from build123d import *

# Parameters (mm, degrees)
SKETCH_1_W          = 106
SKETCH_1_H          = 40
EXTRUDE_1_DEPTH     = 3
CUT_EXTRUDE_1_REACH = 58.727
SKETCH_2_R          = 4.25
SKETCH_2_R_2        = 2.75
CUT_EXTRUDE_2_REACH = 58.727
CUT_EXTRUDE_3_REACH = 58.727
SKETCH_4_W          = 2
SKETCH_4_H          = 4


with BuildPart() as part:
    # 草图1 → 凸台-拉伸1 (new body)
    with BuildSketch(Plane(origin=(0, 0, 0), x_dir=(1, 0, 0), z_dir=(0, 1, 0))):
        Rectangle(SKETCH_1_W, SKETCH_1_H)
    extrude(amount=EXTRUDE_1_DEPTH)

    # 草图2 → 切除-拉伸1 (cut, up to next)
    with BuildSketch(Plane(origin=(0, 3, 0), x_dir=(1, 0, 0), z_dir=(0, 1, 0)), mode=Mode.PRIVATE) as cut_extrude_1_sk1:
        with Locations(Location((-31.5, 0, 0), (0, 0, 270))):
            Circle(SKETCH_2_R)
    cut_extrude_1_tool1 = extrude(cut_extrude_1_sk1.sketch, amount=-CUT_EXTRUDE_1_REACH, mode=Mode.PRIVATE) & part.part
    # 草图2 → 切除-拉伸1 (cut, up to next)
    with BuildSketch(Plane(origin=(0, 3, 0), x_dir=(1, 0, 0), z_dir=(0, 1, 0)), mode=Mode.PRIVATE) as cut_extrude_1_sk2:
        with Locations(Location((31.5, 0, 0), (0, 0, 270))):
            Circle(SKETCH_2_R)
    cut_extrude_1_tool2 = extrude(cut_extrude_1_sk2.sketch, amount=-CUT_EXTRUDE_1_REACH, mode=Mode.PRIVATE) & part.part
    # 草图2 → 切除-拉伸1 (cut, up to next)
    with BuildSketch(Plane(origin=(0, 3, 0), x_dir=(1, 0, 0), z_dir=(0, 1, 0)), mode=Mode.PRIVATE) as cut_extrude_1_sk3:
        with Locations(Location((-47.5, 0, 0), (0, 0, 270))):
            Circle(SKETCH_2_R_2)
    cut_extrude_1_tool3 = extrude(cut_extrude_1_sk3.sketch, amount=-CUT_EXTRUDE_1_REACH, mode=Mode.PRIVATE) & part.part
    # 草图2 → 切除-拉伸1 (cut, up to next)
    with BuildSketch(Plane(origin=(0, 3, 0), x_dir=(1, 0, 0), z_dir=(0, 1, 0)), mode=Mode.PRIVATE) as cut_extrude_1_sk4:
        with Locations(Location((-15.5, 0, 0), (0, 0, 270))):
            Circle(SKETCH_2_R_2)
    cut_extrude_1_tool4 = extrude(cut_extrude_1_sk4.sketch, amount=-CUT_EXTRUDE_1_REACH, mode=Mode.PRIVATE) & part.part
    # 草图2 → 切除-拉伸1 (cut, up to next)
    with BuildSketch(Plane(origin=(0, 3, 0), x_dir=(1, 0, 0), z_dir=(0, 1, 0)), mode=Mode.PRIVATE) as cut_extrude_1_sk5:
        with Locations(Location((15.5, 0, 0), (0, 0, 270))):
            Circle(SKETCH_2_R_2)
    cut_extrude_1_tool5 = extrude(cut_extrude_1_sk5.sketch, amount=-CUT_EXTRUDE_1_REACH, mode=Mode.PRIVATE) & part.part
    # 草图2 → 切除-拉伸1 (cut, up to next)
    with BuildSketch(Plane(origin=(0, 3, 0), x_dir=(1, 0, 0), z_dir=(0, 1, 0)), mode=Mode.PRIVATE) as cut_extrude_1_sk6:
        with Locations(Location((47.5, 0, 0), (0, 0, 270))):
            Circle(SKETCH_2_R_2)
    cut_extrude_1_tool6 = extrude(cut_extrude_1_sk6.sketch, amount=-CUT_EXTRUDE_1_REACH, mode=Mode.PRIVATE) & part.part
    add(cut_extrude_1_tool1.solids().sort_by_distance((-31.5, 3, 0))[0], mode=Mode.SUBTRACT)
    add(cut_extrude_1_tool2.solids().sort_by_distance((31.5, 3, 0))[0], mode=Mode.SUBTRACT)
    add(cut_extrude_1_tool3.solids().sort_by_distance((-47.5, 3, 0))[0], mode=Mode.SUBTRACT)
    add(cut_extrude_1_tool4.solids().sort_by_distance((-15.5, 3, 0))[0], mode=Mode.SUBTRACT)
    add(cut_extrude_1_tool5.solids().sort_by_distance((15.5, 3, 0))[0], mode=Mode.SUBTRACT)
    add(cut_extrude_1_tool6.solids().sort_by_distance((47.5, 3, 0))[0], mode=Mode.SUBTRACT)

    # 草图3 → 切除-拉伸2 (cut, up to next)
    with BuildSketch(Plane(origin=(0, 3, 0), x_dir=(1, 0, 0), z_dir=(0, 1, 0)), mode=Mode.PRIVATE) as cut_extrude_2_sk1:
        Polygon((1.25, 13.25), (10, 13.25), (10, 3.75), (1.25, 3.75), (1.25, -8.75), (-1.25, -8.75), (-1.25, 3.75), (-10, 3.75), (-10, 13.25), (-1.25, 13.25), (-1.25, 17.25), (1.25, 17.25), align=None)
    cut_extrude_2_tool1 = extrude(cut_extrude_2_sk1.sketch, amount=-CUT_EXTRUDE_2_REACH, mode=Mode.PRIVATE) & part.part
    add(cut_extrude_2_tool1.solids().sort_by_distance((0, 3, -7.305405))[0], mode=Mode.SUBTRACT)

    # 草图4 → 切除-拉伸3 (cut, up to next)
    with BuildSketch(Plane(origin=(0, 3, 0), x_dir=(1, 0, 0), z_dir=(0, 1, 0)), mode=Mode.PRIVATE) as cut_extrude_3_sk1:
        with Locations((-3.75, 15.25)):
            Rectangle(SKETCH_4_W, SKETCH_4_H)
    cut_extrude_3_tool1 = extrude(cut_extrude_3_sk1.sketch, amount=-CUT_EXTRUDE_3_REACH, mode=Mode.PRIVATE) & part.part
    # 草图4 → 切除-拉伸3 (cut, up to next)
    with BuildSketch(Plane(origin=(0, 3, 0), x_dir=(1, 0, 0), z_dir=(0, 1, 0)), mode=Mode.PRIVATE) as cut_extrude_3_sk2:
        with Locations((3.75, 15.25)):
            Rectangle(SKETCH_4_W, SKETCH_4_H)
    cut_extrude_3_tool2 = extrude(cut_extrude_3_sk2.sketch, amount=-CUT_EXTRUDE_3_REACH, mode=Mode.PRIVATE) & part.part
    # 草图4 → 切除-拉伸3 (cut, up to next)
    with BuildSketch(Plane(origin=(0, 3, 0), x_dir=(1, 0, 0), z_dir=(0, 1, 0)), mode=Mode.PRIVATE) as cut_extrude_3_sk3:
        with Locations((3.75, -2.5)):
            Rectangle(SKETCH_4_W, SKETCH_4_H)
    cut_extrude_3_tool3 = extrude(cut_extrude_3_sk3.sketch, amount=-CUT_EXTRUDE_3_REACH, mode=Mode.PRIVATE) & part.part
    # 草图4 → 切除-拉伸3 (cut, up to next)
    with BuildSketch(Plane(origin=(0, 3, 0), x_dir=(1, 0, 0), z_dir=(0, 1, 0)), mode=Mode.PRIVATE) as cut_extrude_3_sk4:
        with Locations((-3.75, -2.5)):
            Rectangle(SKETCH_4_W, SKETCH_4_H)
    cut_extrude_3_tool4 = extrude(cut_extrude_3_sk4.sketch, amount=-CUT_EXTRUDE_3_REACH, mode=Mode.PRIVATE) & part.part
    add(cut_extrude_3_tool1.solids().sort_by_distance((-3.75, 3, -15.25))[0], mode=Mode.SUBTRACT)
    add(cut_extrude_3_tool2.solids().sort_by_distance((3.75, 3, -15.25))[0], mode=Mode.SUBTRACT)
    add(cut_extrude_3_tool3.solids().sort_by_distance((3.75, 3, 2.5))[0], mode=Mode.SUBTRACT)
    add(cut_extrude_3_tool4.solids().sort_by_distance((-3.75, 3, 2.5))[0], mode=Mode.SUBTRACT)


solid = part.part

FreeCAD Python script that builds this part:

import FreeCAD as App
import Part
import Sketcher

V = App.Vector

doc = App.newDocument("Part")
body = doc.addObject("PartDesign::Body", "Body")

sketch1 = body.newObject("Sketcher::SketchObject", "Sketch")
sketch1.AttachmentSupport = (doc.getObject("XZ_Plane"), [""])
sketch1.MapMode = "FlatFace"
sketch1.addGeometry([
    Part.LineSegment(V(-53, -20, 0), V(-53, 20, 0)),
    Part.LineSegment(V(-53, 20, 0), V(53, 20, 0)),
    Part.LineSegment(V(53, 20, 0), V(53, -20, 0)),
    Part.LineSegment(V(53, -20, 0), V(-53, -20, 0)),
], False)
sketch1.addConstraint([
    Sketcher.Constraint("Coincident", 0, 2, 1, 1),
    Sketcher.Constraint("Coincident", 1, 2, 2, 1),
    Sketcher.Constraint("Coincident", 2, 2, 3, 1),
    Sketcher.Constraint("Coincident", 3, 2, 0, 1),
    Sketcher.Constraint("Vertical", 0),
    Sketcher.Constraint("Horizontal", 1),
    Sketcher.Constraint("Vertical", 2),
    Sketcher.Constraint("Horizontal", 3),
    Sketcher.Constraint("Symmetric", 0, 2, 2, 2, -1, 1),
    Sketcher.Constraint("DistanceX", 1, 1, 1, 2, 106.0),
    Sketcher.Constraint("DistanceY", 0, 1, 0, 2, 40.0),
])
pad1 = body.newObject("PartDesign::Pad", "Pad")
pad1.Profile = sketch1
pad1.Length = 3
pad1.Reversed = True

sketch2 = body.newObject("Sketcher::SketchObject", "Sketch001")
sketch2.AttachmentSupport = (doc.getObject("XZ_Plane"), [""])
sketch2.MapMode = "FlatFace"
sketch2.AttachmentOffset = App.Placement(V(0, 0, -3), App.Rotation())
sketch2.addGeometry(Part.Circle(V(-31.5, 0, 0), V(0, 0, 1), 4.2), False)
sketch2.addConstraint([
    Sketcher.Constraint("PointOnObject", 0, 3, -1),
    Sketcher.Constraint("Diameter", 0, 8.5),
    Sketcher.Constraint("DistanceX", 0, 3, -1, 1, 31.5),
])
pocket1 = body.newObject("PartDesign::Pocket", "Pocket")
pocket1.Profile = sketch2
pocket1.Type = "UpToFirst"
pocket1.Reversed = True

sketch3 = body.newObject("Sketcher::SketchObject", "Sketch002")
sketch3.AttachmentSupport = (doc.getObject("XZ_Plane"), [""])
sketch3.MapMode = "FlatFace"
sketch3.AttachmentOffset = App.Placement(V(0, 0, -3), App.Rotation())
sketch3.addGeometry(Part.Circle(V(31.5, 0, 0), V(0, 0, 1), 4.2), False)
sketch3.addConstraint([
    Sketcher.Constraint("PointOnObject", 0, 3, -1),
    Sketcher.Constraint("Diameter", 0, 8.5),
    Sketcher.Constraint("DistanceX", -1, 1, 0, 3, 31.5),
])
pocket2 = body.newObject("PartDesign::Pocket", "Pocket001")
pocket2.Profile = sketch3
pocket2.Type = "UpToFirst"
pocket2.Reversed = True

sketch4 = body.newObject("Sketcher::SketchObject", "Sketch003")
sketch4.AttachmentSupport = (doc.getObject("XZ_Plane"), [""])
sketch4.MapMode = "FlatFace"
sketch4.AttachmentOffset = App.Placement(V(0, 0, -3), App.Rotation())
sketch4.addGeometry(Part.Circle(V(-47.5, 0, 0), V(0, 0, 1), 2.8), False)
sketch4.addConstraint([
    Sketcher.Constraint("PointOnObject", 0, 3, -1),
    Sketcher.Constraint("Diameter", 0, 5.5),
    Sketcher.Constraint("DistanceX", 0, 3, -1, 1, 47.5),
])
pocket3 = body.newObject("PartDesign::Pocket", "Pocket002")
pocket3.Profile = sketch4
pocket3.Type = "UpToFirst"
pocket3.Reversed = True

sketch5 = body.newObject("Sketcher::SketchObject", "Sketch004")
sketch5.AttachmentSupport = (doc.getObject("XZ_Plane"), [""])
sketch5.MapMode = "FlatFace"
sketch5.AttachmentOffset = App.Placement(V(0, 0, -3), App.Rotation())
sketch5.addGeometry(Part.Circle(V(-15.5, 0, 0), V(0, 0, 1), 2.8), False)
sketch5.addConstraint([
    Sketcher.Constraint("PointOnObject", 0, 3, -1),
    Sketcher.Constraint("Diameter", 0, 5.5),
    Sketcher.Constraint("DistanceX", 0, 3, -1, 1, 15.5),
])
pocket4 = body.newObject("PartDesign::Pocket", "Pocket003")
pocket4.Profile = sketch5
pocket4.Type = "UpToFirst"
pocket4.Reversed = True

sketch6 = body.newObject("Sketcher::SketchObject", "Sketch005")
sketch6.AttachmentSupport = (doc.getObject("XZ_Plane"), [""])
sketch6.MapMode = "FlatFace"
sketch6.AttachmentOffset = App.Placement(V(0, 0, -3), App.Rotation())
sketch6.addGeometry(Part.Circle(V(15.5, 0, 0), V(0, 0, 1), 2.8), False)
sketch6.addConstraint([
    Sketcher.Constraint("PointOnObject", 0, 3, -1),
    Sketcher.Constraint("Diameter", 0, 5.5),
    Sketcher.Constraint("DistanceX", -1, 1, 0, 3, 15.5),
])
pocket5 = body.newObject("PartDesign::Pocket", "Pocket004")
pocket5.Profile = sketch6
pocket5.Type = "UpToFirst"
pocket5.Reversed = True

sketch7 = body.newObject("Sketcher::SketchObject", "Sketch006")
sketch7.AttachmentSupport = (doc.getObject("XZ_Plane"), [""])
sketch7.MapMode = "FlatFace"
sketch7.AttachmentOffset = App.Placement(V(0, 0, -3), App.Rotation())
sketch7.addGeometry(Part.Circle(V(47.5, 0, 0), V(0, 0, 1), 2.8), False)
sketch7.addConstraint([
    Sketcher.Constraint("PointOnObject", 0, 3, -1),
    Sketcher.Constraint("Diameter", 0, 5.5),
    Sketcher.Constraint("DistanceX", -1, 1, 0, 3, 47.5),
])
pocket6 = body.newObject("PartDesign::Pocket", "Pocket005")
pocket6.Profile = sketch7
pocket6.Type = "UpToFirst"
pocket6.Reversed = True

sketch8 = body.newObject("Sketcher::SketchObject", "Sketch007")
sketch8.AttachmentSupport = (doc.getObject("XZ_Plane"), [""])
sketch8.MapMode = "FlatFace"
sketch8.AttachmentOffset = App.Placement(V(0, 0, -3), App.Rotation())
sketch8.addGeometry([
    Part.LineSegment(V(10, -13.2, 0), V(1.2, -13.2, 0)),
    Part.LineSegment(V(1.2, -13.2, 0), V(1.2, -17.2, 0)),
    Part.LineSegment(V(1.2, -17.2, 0), V(-1.2, -17.2, 0)),
    Part.LineSegment(V(-1.2, -17.2, 0), V(-1.2, -13.2, 0)),
    Part.LineSegment(V(-1.2, -13.2, 0), V(-10, -13.2, 0)),
    Part.LineSegment(V(-10, -13.2, 0), V(-10, -3.8, 0)),
    Part.LineSegment(V(-10, -3.8, 0), V(-1.2, -3.8, 0)),
    Part.LineSegment(V(-1.2, -3.8, 0), V(-1.2, 8.8, 0)),
    Part.LineSegment(V(-1.2, 8.8, 0), V(1.2, 8.8, 0)),
    Part.LineSegment(V(1.2, 8.8, 0), V(1.2, -3.8, 0)),
    Part.LineSegment(V(1.2, -3.8, 0), V(10, -3.8, 0)),
    Part.LineSegment(V(10, -3.8, 0), V(10, -13.2, 0)),
], False)
sketch8.addConstraint([
    Sketcher.Constraint("Coincident", 0, 2, 1, 1),
    Sketcher.Constraint("Coincident", 1, 2, 2, 1),
    Sketcher.Constraint("Coincident", 2, 2, 3, 1),
    Sketcher.Constraint("Coincident", 3, 2, 4, 1),
    Sketcher.Constraint("Coincident", 4, 2, 5, 1),
    Sketcher.Constraint("Coincident", 5, 2, 6, 1),
    Sketcher.Constraint("Coincident", 6, 2, 7, 1),
    Sketcher.Constraint("Coincident", 7, 2, 8, 1),
    Sketcher.Constraint("Coincident", 8, 2, 9, 1),
    Sketcher.Constraint("Coincident", 9, 2, 10, 1),
    Sketcher.Constraint("Coincident", 10, 2, 11, 1),
    Sketcher.Constraint("Coincident", 11, 2, 0, 1),
    Sketcher.Constraint("Horizontal", 0),
    Sketcher.Constraint("Vertical", 1),
    Sketcher.Constraint("Horizontal", 2),
    Sketcher.Constraint("Vertical", 3),
    Sketcher.Constraint("Horizontal", 4),
    Sketcher.Constraint("Vertical", 5),
    Sketcher.Constraint("Horizontal", 6),
    Sketcher.Constraint("Vertical", 7),
    Sketcher.Constraint("Horizontal", 8),
    Sketcher.Constraint("Vertical", 9),
    Sketcher.Constraint("Horizontal", 10),
    Sketcher.Constraint("Vertical", 11),
    Sketcher.Constraint("Symmetric", 0, 2, 3, 2, -2),
    Sketcher.Constraint("Symmetric", 6, 2, 9, 2, -2),
    Sketcher.Constraint("Vertical", 3, 2, 6, 2),
    Sketcher.Constraint("Equal", 0, 4),
    Sketcher.Constraint("DistanceY", 1, 2, 1, 1, 4.0),
    Sketcher.Constraint("DistanceX", 2, 2, 2, 1, 2.5),
    Sketcher.Constraint("DistanceY", 5, 1, 5, 2, 9.5),
    Sketcher.Constraint("DistanceY", 7, 1, 7, 2, 12.5),
    Sketcher.Constraint("DistanceX", 4, 2, -1, 1, 10.0),
    Sketcher.Constraint("DistanceY", 0, 2, -1, 1, 13.25),
])
pocket7 = body.newObject("PartDesign::Pocket", "Pocket006")
pocket7.Profile = sketch8
pocket7.Type = "UpToFirst"
pocket7.Reversed = True

sketch9 = body.newObject("Sketcher::SketchObject", "Sketch008")
sketch9.AttachmentSupport = (doc.getObject("XZ_Plane"), [""])
sketch9.MapMode = "FlatFace"
sketch9.AttachmentOffset = App.Placement(V(0, 0, -3), App.Rotation())
sketch9.addGeometry([
    Part.LineSegment(V(-4.8, -17.2, 0), V(-4.8, -13.2, 0)),
    Part.LineSegment(V(-4.8, -13.2, 0), V(-2.8, -13.2, 0)),
    Part.LineSegment(V(-2.8, -13.2, 0), V(-2.8, -17.2, 0)),
    Part.LineSegment(V(-2.8, -17.2, 0), V(-4.8, -17.2, 0)),
], False)
sketch9.addConstraint([
    Sketcher.Constraint("Coincident", 0, 2, 1, 1),
    Sketcher.Constraint("Coincident", 1, 2, 2, 1),
    Sketcher.Constraint("Coincident", 2, 2, 3, 1),
    Sketcher.Constraint("Coincident", 3, 2, 0, 1),
    Sketcher.Constraint("Vertical", 0),
    Sketcher.Constraint("Horizontal", 1),
    Sketcher.Constraint("Vertical", 2),
    Sketcher.Constraint("Horizontal", 3),
    Sketcher.Constraint("DistanceX", 1, 1, 1, 2, 2.0),
    Sketcher.Constraint("DistanceY", 0, 1, 0, 2, 4.0),
    Sketcher.Constraint("DistanceX", 0, 2, -1, 1, 4.75),
    Sketcher.Constraint("DistanceY", 0, 2, -1, 1, 13.25),
])
pocket8 = body.newObject("PartDesign::Pocket", "Pocket007")
pocket8.Profile = sketch9
pocket8.Type = "UpToFirst"
pocket8.Reversed = True

sketch10 = body.newObject("Sketcher::SketchObject", "Sketch009")
sketch10.AttachmentSupport = (doc.getObject("XZ_Plane"), [""])
sketch10.MapMode = "FlatFace"
sketch10.AttachmentOffset = App.Placement(V(0, 0, -3), App.Rotation())
sketch10.addGeometry([
    Part.LineSegment(V(2.8, -17.2, 0), V(2.8, -13.2, 0)),
    Part.LineSegment(V(2.8, -13.2, 0), V(4.8, -13.2, 0)),
    Part.LineSegment(V(4.8, -13.2, 0), V(4.8, -17.2, 0)),
    Part.LineSegment(V(4.8, -17.2, 0), V(2.8, -17.2, 0)),
], False)
sketch10.addConstraint([
    Sketcher.Constraint("Coincident", 0, 2, 1, 1),
    Sketcher.Constraint("Coincident", 1, 2, 2, 1),
    Sketcher.Constraint("Coincident", 2, 2, 3, 1),
    Sketcher.Constraint("Coincident", 3, 2, 0, 1),
    Sketcher.Constraint("Vertical", 0),
    Sketcher.Constraint("Horizontal", 1),
    Sketcher.Constraint("Vertical", 2),
    Sketcher.Constraint("Horizontal", 3),
    Sketcher.Constraint("DistanceX", 1, 1, 1, 2, 2.0),
    Sketcher.Constraint("DistanceY", 0, 1, 0, 2, 4.0),
    Sketcher.Constraint("DistanceX", -1, 1, 0, 2, 2.75),
    Sketcher.Constraint("DistanceY", 0, 2, -1, 1, 13.25),
])
pocket9 = body.newObject("PartDesign::Pocket", "Pocket008")
pocket9.Profile = sketch10
pocket9.Type = "UpToFirst"
pocket9.Reversed = True

sketch11 = body.newObject("Sketcher::SketchObject", "Sketch010")
sketch11.AttachmentSupport = (doc.getObject("XZ_Plane"), [""])
sketch11.MapMode = "FlatFace"
sketch11.AttachmentOffset = App.Placement(V(0, 0, -3), App.Rotation())
sketch11.addGeometry([
    Part.LineSegment(V(2.8, 0.5, 0), V(2.8, 4.5, 0)),
    Part.LineSegment(V(2.8, 4.5, 0), V(4.8, 4.5, 0)),
    Part.LineSegment(V(4.8, 4.5, 0), V(4.8, 0.5, 0)),
    Part.LineSegment(V(4.8, 0.5, 0), V(2.8, 0.5, 0)),
], False)
sketch11.addConstraint([
    Sketcher.Constraint("Coincident", 0, 2, 1, 1),
    Sketcher.Constraint("Coincident", 1, 2, 2, 1),
    Sketcher.Constraint("Coincident", 2, 2, 3, 1),
    Sketcher.Constraint("Coincident", 3, 2, 0, 1),
    Sketcher.Constraint("Vertical", 0),
    Sketcher.Constraint("Horizontal", 1),
    Sketcher.Constraint("Vertical", 2),
    Sketcher.Constraint("Horizontal", 3),
    Sketcher.Constraint("DistanceX", 1, 1, 1, 2, 2.0),
    Sketcher.Constraint("DistanceY", 0, 1, 0, 2, 4.0),
    Sketcher.Constraint("DistanceY", -1, 1, 0, 2, 4.5),
    Sketcher.Constraint("DistanceX", -1, 1, 0, 2, 2.75),
])
pocket10 = body.newObject("PartDesign::Pocket", "Pocket009")
pocket10.Profile = sketch11
pocket10.Type = "UpToFirst"
pocket10.Reversed = True

sketch12 = body.newObject("Sketcher::SketchObject", "Sketch011")
sketch12.AttachmentSupport = (doc.getObject("XZ_Plane"), [""])
sketch12.MapMode = "FlatFace"
sketch12.AttachmentOffset = App.Placement(V(0, 0, -3), App.Rotation())
sketch12.addGeometry([
    Part.LineSegment(V(-4.8, 0.5, 0), V(-4.8, 4.5, 0)),
    Part.LineSegment(V(-4.8, 4.5, 0), V(-2.8, 4.5, 0)),
    Part.LineSegment(V(-2.8, 4.5, 0), V(-2.8, 0.5, 0)),
    Part.LineSegment(V(-2.8, 0.5, 0), V(-4.8, 0.5, 0)),
], False)
sketch12.addConstraint([
    Sketcher.Constraint("Coincident", 0, 2, 1, 1),
    Sketcher.Constraint("Coincident", 1, 2, 2, 1),
    Sketcher.Constraint("Coincident", 2, 2, 3, 1),
    Sketcher.Constraint("Coincident", 3, 2, 0, 1),
    Sketcher.Constraint("Vertical", 0),
    Sketcher.Constraint("Horizontal", 1),
    Sketcher.Constraint("Vertical", 2),
    Sketcher.Constraint("Horizontal", 3),
    Sketcher.Constraint("DistanceX", 1, 1, 1, 2, 2.0),
    Sketcher.Constraint("DistanceY", 0, 1, 0, 2, 4.0),
    Sketcher.Constraint("DistanceY", -1, 1, 0, 2, 4.5),
    Sketcher.Constraint("DistanceX", 0, 2, -1, 1, 4.75),
])
pocket11 = body.newObject("PartDesign::Pocket", "Pocket010")
pocket11.Profile = sketch12
pocket11.Type = "UpToFirst"
pocket11.Reversed = True

doc.recompute()
